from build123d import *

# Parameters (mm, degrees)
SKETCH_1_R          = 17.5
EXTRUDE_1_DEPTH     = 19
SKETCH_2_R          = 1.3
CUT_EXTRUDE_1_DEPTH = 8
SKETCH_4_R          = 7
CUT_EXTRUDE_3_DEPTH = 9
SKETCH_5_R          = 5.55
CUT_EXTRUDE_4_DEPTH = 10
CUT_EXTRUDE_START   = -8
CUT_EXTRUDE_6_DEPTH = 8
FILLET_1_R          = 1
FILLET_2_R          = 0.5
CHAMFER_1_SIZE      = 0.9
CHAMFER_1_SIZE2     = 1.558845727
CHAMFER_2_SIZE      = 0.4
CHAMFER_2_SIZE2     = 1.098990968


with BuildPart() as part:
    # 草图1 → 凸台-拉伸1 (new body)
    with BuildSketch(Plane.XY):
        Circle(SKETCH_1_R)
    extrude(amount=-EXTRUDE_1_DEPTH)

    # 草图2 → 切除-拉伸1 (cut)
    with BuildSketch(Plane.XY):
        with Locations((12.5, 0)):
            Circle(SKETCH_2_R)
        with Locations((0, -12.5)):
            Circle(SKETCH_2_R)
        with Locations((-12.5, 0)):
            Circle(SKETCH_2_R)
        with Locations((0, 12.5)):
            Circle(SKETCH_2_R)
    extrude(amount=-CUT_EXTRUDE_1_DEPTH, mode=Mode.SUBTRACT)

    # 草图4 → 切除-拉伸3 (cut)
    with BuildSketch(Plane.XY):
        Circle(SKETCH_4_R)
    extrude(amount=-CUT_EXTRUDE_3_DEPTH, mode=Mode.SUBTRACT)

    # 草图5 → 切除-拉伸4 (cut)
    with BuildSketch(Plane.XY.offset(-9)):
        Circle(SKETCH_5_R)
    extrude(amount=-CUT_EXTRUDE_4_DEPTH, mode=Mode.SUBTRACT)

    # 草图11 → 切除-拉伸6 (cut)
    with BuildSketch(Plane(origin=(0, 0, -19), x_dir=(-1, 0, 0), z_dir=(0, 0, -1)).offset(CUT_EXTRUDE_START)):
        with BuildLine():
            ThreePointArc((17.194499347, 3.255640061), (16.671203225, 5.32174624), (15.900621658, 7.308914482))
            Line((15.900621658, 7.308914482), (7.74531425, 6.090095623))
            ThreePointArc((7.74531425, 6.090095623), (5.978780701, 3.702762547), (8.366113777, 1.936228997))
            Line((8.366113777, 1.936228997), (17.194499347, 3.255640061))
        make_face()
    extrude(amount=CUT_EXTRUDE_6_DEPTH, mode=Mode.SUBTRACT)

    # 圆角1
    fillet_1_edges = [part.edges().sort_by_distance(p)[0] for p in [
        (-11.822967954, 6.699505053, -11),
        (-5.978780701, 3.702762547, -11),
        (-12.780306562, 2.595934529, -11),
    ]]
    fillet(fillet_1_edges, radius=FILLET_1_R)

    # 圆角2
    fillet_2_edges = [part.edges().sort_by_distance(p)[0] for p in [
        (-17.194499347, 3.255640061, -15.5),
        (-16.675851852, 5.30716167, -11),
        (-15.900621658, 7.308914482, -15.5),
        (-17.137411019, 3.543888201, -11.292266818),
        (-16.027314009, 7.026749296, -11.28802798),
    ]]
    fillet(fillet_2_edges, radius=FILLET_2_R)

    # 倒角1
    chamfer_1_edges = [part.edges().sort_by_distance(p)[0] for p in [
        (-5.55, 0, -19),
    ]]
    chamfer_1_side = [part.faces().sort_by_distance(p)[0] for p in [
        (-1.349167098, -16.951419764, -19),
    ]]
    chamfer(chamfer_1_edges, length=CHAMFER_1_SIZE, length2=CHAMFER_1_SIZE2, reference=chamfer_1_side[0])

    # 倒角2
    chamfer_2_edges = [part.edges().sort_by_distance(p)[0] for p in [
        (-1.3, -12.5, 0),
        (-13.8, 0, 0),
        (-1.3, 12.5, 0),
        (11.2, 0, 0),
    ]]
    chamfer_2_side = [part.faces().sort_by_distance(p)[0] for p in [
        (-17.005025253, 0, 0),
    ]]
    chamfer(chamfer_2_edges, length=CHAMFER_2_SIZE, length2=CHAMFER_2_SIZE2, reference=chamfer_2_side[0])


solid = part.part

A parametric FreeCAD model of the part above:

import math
import FreeCAD as App
import Part
import Sketcher
from FreeCAD import Vector
Q = App.Units.Quantity


def edges_at(feature, points):
    """Names of the edges that pass closest to the given points."""
    edges = feature.Shape.Edges
    near = lambda p: min(range(len(edges)), key=lambda i: edges[i].distToShape(Part.Vertex(*p))[0])
    return sorted({f"Edge{near(p) + 1}" for p in points})

doc = App.newDocument("Part")
body = doc.addObject("PartDesign::Body", "Body")

# Sketch on XY plane
sketch1 = body.newObject("Sketcher::SketchObject", "Sketch")
sketch1.AttachmentSupport = (doc.getObject("XY_Plane"), [""])
sketch1.MapMode = "FlatFace"
sketch1.addGeometry(Part.Circle(Vector(0, 0, 0), Vector(0, 0, 1), 18), False)
sketch1.addConstraint(Sketcher.Constraint("Coincident", 0, 3, -1, 1))
sketch1.addConstraint(Sketcher.Constraint("Diameter", 0, 35.0))
pad1 = body.newObject("PartDesign::Pad", "Pad")
pad1.Profile = sketch1
pad1.Length = 19
pad1.Reversed = True

# Sketch on XY plane
sketch2 = body.newObject("Sketcher::SketchObject", "Sketch001")
sketch2.AttachmentSupport = (doc.getObject("XY_Plane"), [""])
sketch2.MapMode = "FlatFace"
sketch2.addGeometry(Part.Circle(Vector(12.5, 0, 0), Vector(0, 0, 1), 1.3), False)
sketch2.addGeometry(Part.Circle(Vector(0, -12.5, 0), Vector(0, 0, 1), 1.3), False)
sketch2.addGeometry(Part.Circle(Vector(-12.5, 0, 0), Vector(0, 0, 1), 1.3), False)
sketch2.addGeometry(Part.Circle(Vector(0, 12.5, 0), Vector(0, 0, 1), 1.3), False)
sketch2.addConstraint(Sketcher.Constraint("Equal", 0, 1))
sketch2.addConstraint(Sketcher.Constraint("Equal", 1, 2))
sketch2.addConstraint(Sketcher.Constraint("Equal", 2, 3))
sketch2.addConstraint(Sketcher.Constraint("Symmetric", 0, 3, 2, 3, -1, 1))
sketch2.addConstraint(Sketcher.Constraint("Symmetric", 1, 3, 3, 3, -1, 1))
sketch2.addConstraint(Sketcher.Constraint("PointOnObject", 0, 3, -1))
sketch2.addConstraint(Sketcher.Constraint("PointOnObject", 1, 3, -2))
sketch2.addConstraint(Sketcher.Constraint("Diameter", 0, 2.6))
sketch2.addConstraint(Sketcher.Constraint("DistanceX", 2, 3, 0, 3, 25.0))
sketch2.addConstraint(Sketcher.Constraint("DistanceY", 1, 3, 3, 3, 25.0))
pocket1 = body.newObject("PartDesign::Pocket", "Pocket")
pocket1.Profile = sketch2
pocket1.Length = 8

# Sketch on XY plane
sketch3 = body.newObject("Sketcher::SketchObject", "Sketch002")
sketch3.AttachmentSupport = (doc.getObject("XY_Plane"), [""])
sketch3.MapMode = "FlatFace"
sketch3.addGeometry(Part.Circle(Vector(0, 0, 0), Vector(0, 0, 1), 7), False)
sketch3.addConstraint(Sketcher.Constraint("Coincident", 0, 3, -1, 1))
sketch3.addConstraint(Sketcher.Constraint("Diameter", 0, 14.0))
pocket2 = body.newObject("PartDesign::Pocket", "Pocket001")
pocket2.Profile = sketch3
pocket2.Length = 9

# Sketch on XY plane
sketch4 = body.newObject("Sketcher::SketchObject", "Sketch003")
sketch4.AttachmentSupport = (doc.getObject("XY_Plane"), [""])
sketch4.MapMode = "FlatFace"
sketch4.AttachmentOffset = App.Placement(Vector(0, 0, -9), App.Rotation())
sketch4.addGeometry(Part.Circle(Vector(0, 0, 0), Vector(0, 0, 1), 6), False)
sketch4.addConstraint(Sketcher.Constraint("Coincident", 0, 3, -1, 1))
sketch4.addConstraint(Sketcher.Constraint("Diameter", 0, 11.1))
pocket3 = body.newObject("PartDesign::Pocket", "Pocket002")
pocket3.Profile = sketch4
pocket3.Length = 10

# Sketch on XY plane
sketch5 = body.newObject("Sketcher::SketchObject", "Sketch004")
sketch5.AttachmentSupport = (doc.getObject("XY_Plane"), [""])
sketch5.MapMode = "FlatFace"
sketch5.AttachmentOffset = App.Placement(Vector(0, 0, -11), App.Rotation())
sketch5.addGeometry(Part.ArcOfCircle(Part.Circle(Vector(0, 0, 0), Vector(0, 0, 1), 17.5), math.radians(155.31), math.radians(169.28)), False)
sketch5.addGeometry(Part.LineSegment(Vector(-15.9, 7.3, 0), Vector(-7.7, 6.1, 0)), False)
sketch5.addGeometry(Part.ArcOfCircle(Part.Circle(Vector(-8.1, 4, 0), Vector(0, 0, 1), 2.1), math.radians(-98), math.radians(81)), False)
sketch5.addGeometry(Part.LineSegment(Vector(-8.4, 1.9, 0), Vector(-17.2, 3.3, 0)), False)
sketch5.addConstraint(Sketcher.Constraint("Coincident", 0, 1, 1, 1))
sketch5.addConstraint(Sketcher.Constraint("Tangent", 1, 2, 2, 2))
sketch5.addConstraint(Sketcher.Constraint("Tangent", 2, 1, 3, 1))
sketch5.addConstraint(Sketcher.Constraint("Coincident", 3, 2, 0, 2))
sketch5.addConstraint(Sketcher.Constraint("Coincident", 0, 3, -1, 1))
sketch5.addConstraint(Sketcher.Constraint("Parallel", 1, 3))
sketch5.addConstraint(Sketcher.Constraint("Radius", 0, 17.5))
sketch5.addConstraint(Sketcher.Constraint("Radius", 2, 2.1))
sketch5.addConstraint(Sketcher.Constraint("Angle", 1, Q("-8.5 deg")))
sketch5.addConstraint(Sketcher.Constraint("DistanceX", 3, 2, -1, 1, 17.194499))
sketch5.addConstraint(Sketcher.Constraint("Distance", 1, 8.245881))
pocket4 = body.newObject("PartDesign::Pocket", "Pocket003")
pocket4.Profile = sketch5
pocket4.Length = 8
doc.recompute()

fillet = body.newObject("PartDesign::Fillet", "Fillet")
fillet.Base = (pocket4, edges_at(pocket4, [(-11.823, 6.7, -11), (-5.979, 3.703, -11), (-12.78, 2.596, -11)]))
fillet.Radius = 1
doc.recompute()

fillet2 = body.newObject("PartDesign::Fillet", "Fillet001")
fillet2.Base = (fillet, edges_at(fillet, [
    (-17.194, 3.256, -15.5),
    (-16.676, 5.307, -11),
    (-15.901, 7.309, -15.5),
    (-17.137, 3.544, -11.292),
    (-16.027, 7.027, -11.288),
]))
fillet2.Radius = 0.5
doc.recompute()

chamfer = body.newObject("PartDesign::Chamfer", "Chamfer")
chamfer.Base = (fillet2, edges_at(fillet2, [(-5.55, 0, -19)]))
chamfer.ChamferType = "Two distances"
chamfer.Size = 0.9
chamfer.Size2 = 1.558846
doc.recompute()

chamfer2 = body.newObject("PartDesign::Chamfer", "Chamfer001")
chamfer2.Base = (chamfer, edges_at(chamfer, [
    (-1.3, -12.5, 0),
    (-13.8, 0, 0),
    (-1.3, 12.5, 0),
    (11.2, 0, 0),
]))
chamfer2.ChamferType = "Two distances"
chamfer2.Size = 0.4
chamfer2.Size2 = 1.098991

doc.recompute()
